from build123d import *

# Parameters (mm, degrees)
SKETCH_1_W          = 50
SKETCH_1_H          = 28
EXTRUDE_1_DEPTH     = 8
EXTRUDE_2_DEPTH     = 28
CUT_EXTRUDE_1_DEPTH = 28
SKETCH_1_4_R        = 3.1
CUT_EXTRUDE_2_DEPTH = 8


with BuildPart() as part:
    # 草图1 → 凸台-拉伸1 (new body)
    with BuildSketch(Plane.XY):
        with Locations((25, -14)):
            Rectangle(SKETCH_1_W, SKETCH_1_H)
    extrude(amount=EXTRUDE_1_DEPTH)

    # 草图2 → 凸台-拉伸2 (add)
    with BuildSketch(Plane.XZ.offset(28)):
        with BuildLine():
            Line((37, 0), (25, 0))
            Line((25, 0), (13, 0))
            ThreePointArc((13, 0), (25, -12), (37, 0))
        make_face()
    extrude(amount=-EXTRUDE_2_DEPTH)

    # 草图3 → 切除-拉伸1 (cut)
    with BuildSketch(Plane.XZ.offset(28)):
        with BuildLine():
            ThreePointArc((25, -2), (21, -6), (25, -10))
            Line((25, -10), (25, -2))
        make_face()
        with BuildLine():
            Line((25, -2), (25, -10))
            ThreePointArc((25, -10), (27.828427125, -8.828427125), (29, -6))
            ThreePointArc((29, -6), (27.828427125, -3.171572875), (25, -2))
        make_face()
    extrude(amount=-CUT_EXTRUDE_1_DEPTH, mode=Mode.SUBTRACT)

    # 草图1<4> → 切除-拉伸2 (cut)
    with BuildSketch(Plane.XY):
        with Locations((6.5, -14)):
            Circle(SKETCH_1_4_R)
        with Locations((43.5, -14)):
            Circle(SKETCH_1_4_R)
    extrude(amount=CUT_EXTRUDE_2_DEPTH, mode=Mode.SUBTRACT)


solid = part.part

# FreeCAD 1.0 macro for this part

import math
import FreeCAD as App
import Part
import Sketcher
from FreeCAD import Vector
Q = App.Units.Quantity

doc = App.newDocument("Part")
params = doc.addObject("Spreadsheet::Sheet", "Params")
for row, (alias, value) in enumerate([
    ("sketch1_width", "50 mm"),
    ("sketch1_height", "28 mm"),
    ("pad1_length", "8 mm"),
    ("sketch2_radius", "12 mm"),
    ("pad2_length", "28 mm"),
    ("sketch3_radius", "4 mm"),
    ("pocket1_length", "28 mm"),
    ("sketch4_diameter", "6.2 mm"),
    ("pocket2_length", "8 mm"),
], start=1):
    params.set(f"A{row}", alias)
    params.set(f"B{row}", "=" + value)
    params.setAlias(f"B{row}", alias)

body = doc.addObject("PartDesign::Body", "Body")

sketch1 = doc.addObject("Sketcher::SketchObject", "Sketch")
body.addObject(sketch1)
sketch1.AttachmentSupport = (doc.XY_Plane, [""])
sketch1.MapMode = "FlatFace"
sketch1.addGeometry(Part.LineSegment(Vector(0, 0, 0), Vector(0, -28, 0)), False)
sketch1.addGeometry(Part.LineSegment(Vector(0, -28, 0), Vector(50, -28, 0)), False)
sketch1.addGeometry(Part.LineSegment(Vector(50, -28, 0), Vector(50, 0, 0)), False)
sketch1.addGeometry(Part.LineSegment(Vector(50, 0, 0), Vector(0, 0, 0)), False)
sketch1.addConstraint(Sketcher.Constraint("Coincident", 0, 2, 1, 1))
sketch1.addConstraint(Sketcher.Constraint("Coincident", 1, 2, 2, 1))
sketch1.addConstraint(Sketcher.Constraint("Coincident", 2, 2, 3, 1))
sketch1.addConstraint(Sketcher.Constraint("Coincident", 3, 2, 0, 1))
sketch1.addConstraint(Sketcher.Constraint("Vertical", 0))
sketch1.addConstraint(Sketcher.Constraint("Horizontal", 1))
sketch1.addConstraint(Sketcher.Constraint("Vertical", 2))
sketch1.addConstraint(Sketcher.Constraint("Horizontal", 3))
sketch1.addConstraint(Sketcher.Constraint("Coincident", 3, 2, -1, 1))
sketch1.addConstraint(Sketcher.Constraint("DistanceX", 1, 1, 1, 2, Q("50 mm")))
sketch1.addConstraint(Sketcher.Constraint("DistanceY", 0, 2, 0, 1, Q("28 mm")))
sketch1.setExpression("Constraints[9]", "Params.sketch1_width")
sketch1.setExpression("Constraints[10]", "Params.sketch1_height")
pad1 = doc.addObject("PartDesign::Pad", "Pad")
body.addObject(pad1)
pad1.Profile = sketch1
pad1.setExpression("Length", "Params.pad1_length")

sketch2 = doc.addObject("Sketcher::SketchObject", "Sketch001")
body.addObject(sketch2)
sketch2.AttachmentSupport = (doc.XZ_Plane, [""])
sketch2.MapMode = "FlatFace"
sketch2.AttachmentOffset = App.Placement(Vector(0, 0, 28), App.Rotation())
sketch2.addGeometry(Part.LineSegment(Vector(37, 0, 0), Vector(13, 0, 0)), False)
sketch2.addGeometry(Part.ArcOfCircle(Part.Circle(Vector(25, 0, 0), Vector(0, 0, 1), 12), math.radians(180), math.radians(360)), False)
sketch2.addConstraint(Sketcher.Constraint("Coincident", 0, 1, 1, 2))
sketch2.addConstraint(Sketcher.Constraint("Coincident", 1, 1, 0, 2))
sketch2.addConstraint(Sketcher.Constraint("Horizontal", 0))
sketch2.addConstraint(Sketcher.Constraint("PointOnObject", 1, 3, -1))
sketch2.addConstraint(Sketcher.Constraint("PointOnObject", 0, 1, -1))
sketch2.addConstraint(Sketcher.Constraint("Radius", 1, Q("12 mm")))
sketch2.addConstraint(Sketcher.Constraint("DistanceX", -1, 1, 1, 3, Q("25 mm")))
sketch2.setExpression("Constraints[5]", "Params.sketch2_radius")
pad2 = doc.addObject("PartDesign::Pad", "Pad001")
body.addObject(pad2)
pad2.Profile = sketch2
pad2.setExpression("Length", "Params.pad2_length")
pad2.Reversed = True

sketch3 = doc.addObject("Sketcher::SketchObject", "Sketch002")
body.addObject(sketch3)
sketch3.AttachmentSupport = (doc.XZ_Plane, [""])
sketch3.MapMode = "FlatFace"
sketch3.AttachmentOffset = App.Placement(Vector(0, 0, 28), App.Rotation())
sketch3.addGeometry(Part.ArcOfCircle(Part.Circle(Vector(25, -6, 0), Vector(0, 0, 1), 4), math.radians(90), math.radians(270)), False)
sketch3.addGeometry(Part.ArcOfCircle(Part.Circle(Vector(25, -6, 0), Vector(0, 0, 1), 4), math.radians(-90), math.radians(0)), False)
sketch3.addGeometry(Part.ArcOfCircle(Part.Circle(Vector(25, -6, 0), Vector(0, 0, 1), 4), math.radians(0), math.radians(90)), False)
sketch3.addConstraint(Sketcher.Constraint("Tangent", 0, 2, 1, 1))
sketch3.addConstraint(Sketcher.Constraint("Tangent", 1, 2, 2, 1))
sketch3.addConstraint(Sketcher.Constraint("Tangent", 2, 2, 0, 1))
sketch3.addConstraint(Sketcher.Constraint("Horizontal", 2, 3, 1, 2))
sketch3.addConstraint(Sketcher.Constraint("Vertical", 2, 3, 0, 2))
sketch3.addConstraint(Sketcher.Constraint("Vertical", 0, 2, 2, 2))
sketch3.addConstraint(Sketcher.Constraint("Radius", 0, Q("4 mm")))
sketch3.addConstraint(Sketcher.Constraint("DistanceX", -1, 1, 0, 3, Q("25 mm")))
sketch3.addConstraint(Sketcher.Constraint("DistanceY", 0, 3, -1, 1, Q("6 mm")))
sketch3.setExpression("Constraints[6]", "Params.sketch3_radius")
pocket1 = doc.addObject("PartDesign::Pocket", "Pocket")
body.addObject(pocket1)
pocket1.Profile = sketch3
pocket1.setExpression("Length", "Params.pocket1_length")

sketch4 = doc.addObject("Sketcher::SketchObject", "Sketch003")
body.addObject(sketch4)
sketch4.AttachmentSupport = (doc.XY_Plane, [""])
sketch4.MapMode = "FlatFace"
sketch4.addGeometry(Part.Circle(Vector(6.5, -14, 0), Vector(0, 0, 1), 3.1), False)
sketch4.addGeometry(Part.Circle(Vector(43.5, -14, 0), Vector(0, 0, 1), 3.1), False)
sketch4.addConstraint(Sketcher.Constraint("Equal", 0, 1))
sketch4.addConstraint(Sketcher.Constraint("Horizontal", 0, 3, 1, 3))
sketch4.addConstraint(Sketcher.Constraint("Diameter", 0, Q("6.2 mm")))
sketch4.addConstraint(Sketcher.Constraint("DistanceY", 0, 3, -1, 1, Q("14 mm")))
sketch4.addConstraint(Sketcher.Constraint("DistanceX", 0, 3, 1, 3, Q("37 mm")))
sketch4.addConstraint(Sketcher.Constraint("DistanceX", -1, 1, 0, 3, Q("6.5 mm")))
sketch4.setExpression("Constraints[2]", "Params.sketch4_diameter")
pocket2 = doc.addObject("PartDesign::Pocket", "Pocket001")
body.addObject(pocket2)
pocket2.Profile = sketch4
pocket2.setExpression("Length", "Params.pocket2_length")
pocket2.Reversed = True

doc.recompute()
